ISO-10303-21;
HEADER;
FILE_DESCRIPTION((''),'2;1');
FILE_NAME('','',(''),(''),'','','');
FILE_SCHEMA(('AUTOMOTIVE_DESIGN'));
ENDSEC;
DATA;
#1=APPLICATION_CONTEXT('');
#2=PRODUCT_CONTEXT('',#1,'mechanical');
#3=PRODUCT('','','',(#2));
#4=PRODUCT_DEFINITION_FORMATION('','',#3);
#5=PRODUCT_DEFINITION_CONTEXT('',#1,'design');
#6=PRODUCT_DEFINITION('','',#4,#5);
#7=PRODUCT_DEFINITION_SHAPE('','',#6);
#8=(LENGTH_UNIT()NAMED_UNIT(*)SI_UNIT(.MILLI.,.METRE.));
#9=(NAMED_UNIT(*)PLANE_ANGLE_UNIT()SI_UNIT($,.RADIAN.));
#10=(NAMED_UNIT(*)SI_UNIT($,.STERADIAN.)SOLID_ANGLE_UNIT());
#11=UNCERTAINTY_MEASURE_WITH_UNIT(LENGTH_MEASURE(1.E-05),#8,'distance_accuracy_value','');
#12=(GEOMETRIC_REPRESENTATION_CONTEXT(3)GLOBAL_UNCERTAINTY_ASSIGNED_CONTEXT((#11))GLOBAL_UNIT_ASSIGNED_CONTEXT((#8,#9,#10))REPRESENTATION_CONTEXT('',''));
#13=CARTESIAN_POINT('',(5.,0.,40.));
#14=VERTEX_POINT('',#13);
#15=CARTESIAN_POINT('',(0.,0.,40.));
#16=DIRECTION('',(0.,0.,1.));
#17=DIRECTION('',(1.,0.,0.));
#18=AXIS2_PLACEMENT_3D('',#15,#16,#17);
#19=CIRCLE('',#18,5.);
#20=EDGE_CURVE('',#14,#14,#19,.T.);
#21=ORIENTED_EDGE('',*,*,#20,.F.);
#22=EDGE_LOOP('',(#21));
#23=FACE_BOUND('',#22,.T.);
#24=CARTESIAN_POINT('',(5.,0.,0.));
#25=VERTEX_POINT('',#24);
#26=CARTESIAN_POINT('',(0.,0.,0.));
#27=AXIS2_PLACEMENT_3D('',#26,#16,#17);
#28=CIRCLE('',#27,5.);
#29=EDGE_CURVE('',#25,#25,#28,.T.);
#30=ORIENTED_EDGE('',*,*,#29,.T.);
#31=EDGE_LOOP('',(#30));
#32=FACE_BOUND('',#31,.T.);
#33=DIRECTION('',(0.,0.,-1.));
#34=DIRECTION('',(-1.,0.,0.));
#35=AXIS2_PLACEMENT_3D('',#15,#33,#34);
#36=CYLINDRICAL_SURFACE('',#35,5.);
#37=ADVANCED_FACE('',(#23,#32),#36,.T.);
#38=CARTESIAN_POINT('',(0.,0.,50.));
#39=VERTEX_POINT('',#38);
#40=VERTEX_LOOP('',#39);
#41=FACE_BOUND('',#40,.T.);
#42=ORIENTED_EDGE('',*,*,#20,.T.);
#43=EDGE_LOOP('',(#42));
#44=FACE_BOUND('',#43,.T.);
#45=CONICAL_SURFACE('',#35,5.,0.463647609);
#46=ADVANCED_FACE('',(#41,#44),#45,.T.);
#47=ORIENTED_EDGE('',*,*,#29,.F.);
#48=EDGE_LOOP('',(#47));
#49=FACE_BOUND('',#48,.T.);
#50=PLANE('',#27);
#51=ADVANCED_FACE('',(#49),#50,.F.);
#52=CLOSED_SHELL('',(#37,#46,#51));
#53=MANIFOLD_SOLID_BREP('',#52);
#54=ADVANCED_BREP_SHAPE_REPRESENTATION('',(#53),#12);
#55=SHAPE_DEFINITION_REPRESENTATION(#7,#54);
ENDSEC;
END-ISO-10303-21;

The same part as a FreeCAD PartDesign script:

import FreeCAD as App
import Part
import Sketcher
Q = App.Units.Quantity


def add_polygon(sketch, points):
    """Adds a closed chain of lines whose ends are joined by coincident constraints."""
    first, n = sketch.GeometryCount, len(points)
    for a, b in zip(points, points[1:] + points[:1]):
        sketch.addGeometry(Part.LineSegment(App.Vector(*a, 0), App.Vector(*b, 0)), False)
    for i in range(n):
        sketch.addConstraint(Sketcher.Constraint("Coincident", first + i, 2, first + (i + 1) % n, 1))

doc = App.newDocument("Part")
body = doc.addObject("PartDesign::Body", "Body")

sketch1 = body.newObject("Sketcher::SketchObject", "Sketch")
sketch1.AttachmentSupport = (doc.getObject("XY_Plane"), [""])
sketch1.MapMode = "FlatFace"
sketch1.addGeometry(Part.Circle(App.Vector(0, 0, 0), App.Vector(0, 0, 1), 5), False)
sketch1.addConstraint(Sketcher.Constraint("Coincident", 0, 3, -1, 1))
sketch1.addConstraint(Sketcher.Constraint("Diameter", 0, Q("10 mm")))
pad1 = body.newObject("PartDesign::Pad", "Pad")
pad1.Profile = sketch1
pad1.Length = 40

sketch2 = body.newObject("Sketcher::SketchObject", "Sketch001")
sketch2.AttachmentSupport = (doc.getObject("XZ_Plane"), [""])
sketch2.MapMode = "FlatFace"
add_polygon(sketch2, [(0, 40), (-5, 40), (0, 50)])
sketch2.addConstraint(Sketcher.Constraint("Horizontal", 0))
sketch2.addConstraint(Sketcher.Constraint("Vertical", 2))
sketch2.addConstraint(Sketcher.Constraint("PointOnObject", 1, 2, -2))
sketch2.addConstraint(Sketcher.Constraint("DistanceX", 0, 2, 0, 1, Q("5 mm")))
sketch2.addConstraint(Sketcher.Constraint("DistanceY", 2, 2, 2, 1, Q("10 mm")))
sketch2.addConstraint(Sketcher.Constraint("DistanceY", -1, 1, 0, 2, Q("40 mm")))
revolution = body.newObject("PartDesign::Revolution", "Revolution")
revolution.Profile = sketch2
revolution.ReferenceAxis = (sketch2, ["V_Axis"])
revolution.Angle = 360

doc.recompute()
